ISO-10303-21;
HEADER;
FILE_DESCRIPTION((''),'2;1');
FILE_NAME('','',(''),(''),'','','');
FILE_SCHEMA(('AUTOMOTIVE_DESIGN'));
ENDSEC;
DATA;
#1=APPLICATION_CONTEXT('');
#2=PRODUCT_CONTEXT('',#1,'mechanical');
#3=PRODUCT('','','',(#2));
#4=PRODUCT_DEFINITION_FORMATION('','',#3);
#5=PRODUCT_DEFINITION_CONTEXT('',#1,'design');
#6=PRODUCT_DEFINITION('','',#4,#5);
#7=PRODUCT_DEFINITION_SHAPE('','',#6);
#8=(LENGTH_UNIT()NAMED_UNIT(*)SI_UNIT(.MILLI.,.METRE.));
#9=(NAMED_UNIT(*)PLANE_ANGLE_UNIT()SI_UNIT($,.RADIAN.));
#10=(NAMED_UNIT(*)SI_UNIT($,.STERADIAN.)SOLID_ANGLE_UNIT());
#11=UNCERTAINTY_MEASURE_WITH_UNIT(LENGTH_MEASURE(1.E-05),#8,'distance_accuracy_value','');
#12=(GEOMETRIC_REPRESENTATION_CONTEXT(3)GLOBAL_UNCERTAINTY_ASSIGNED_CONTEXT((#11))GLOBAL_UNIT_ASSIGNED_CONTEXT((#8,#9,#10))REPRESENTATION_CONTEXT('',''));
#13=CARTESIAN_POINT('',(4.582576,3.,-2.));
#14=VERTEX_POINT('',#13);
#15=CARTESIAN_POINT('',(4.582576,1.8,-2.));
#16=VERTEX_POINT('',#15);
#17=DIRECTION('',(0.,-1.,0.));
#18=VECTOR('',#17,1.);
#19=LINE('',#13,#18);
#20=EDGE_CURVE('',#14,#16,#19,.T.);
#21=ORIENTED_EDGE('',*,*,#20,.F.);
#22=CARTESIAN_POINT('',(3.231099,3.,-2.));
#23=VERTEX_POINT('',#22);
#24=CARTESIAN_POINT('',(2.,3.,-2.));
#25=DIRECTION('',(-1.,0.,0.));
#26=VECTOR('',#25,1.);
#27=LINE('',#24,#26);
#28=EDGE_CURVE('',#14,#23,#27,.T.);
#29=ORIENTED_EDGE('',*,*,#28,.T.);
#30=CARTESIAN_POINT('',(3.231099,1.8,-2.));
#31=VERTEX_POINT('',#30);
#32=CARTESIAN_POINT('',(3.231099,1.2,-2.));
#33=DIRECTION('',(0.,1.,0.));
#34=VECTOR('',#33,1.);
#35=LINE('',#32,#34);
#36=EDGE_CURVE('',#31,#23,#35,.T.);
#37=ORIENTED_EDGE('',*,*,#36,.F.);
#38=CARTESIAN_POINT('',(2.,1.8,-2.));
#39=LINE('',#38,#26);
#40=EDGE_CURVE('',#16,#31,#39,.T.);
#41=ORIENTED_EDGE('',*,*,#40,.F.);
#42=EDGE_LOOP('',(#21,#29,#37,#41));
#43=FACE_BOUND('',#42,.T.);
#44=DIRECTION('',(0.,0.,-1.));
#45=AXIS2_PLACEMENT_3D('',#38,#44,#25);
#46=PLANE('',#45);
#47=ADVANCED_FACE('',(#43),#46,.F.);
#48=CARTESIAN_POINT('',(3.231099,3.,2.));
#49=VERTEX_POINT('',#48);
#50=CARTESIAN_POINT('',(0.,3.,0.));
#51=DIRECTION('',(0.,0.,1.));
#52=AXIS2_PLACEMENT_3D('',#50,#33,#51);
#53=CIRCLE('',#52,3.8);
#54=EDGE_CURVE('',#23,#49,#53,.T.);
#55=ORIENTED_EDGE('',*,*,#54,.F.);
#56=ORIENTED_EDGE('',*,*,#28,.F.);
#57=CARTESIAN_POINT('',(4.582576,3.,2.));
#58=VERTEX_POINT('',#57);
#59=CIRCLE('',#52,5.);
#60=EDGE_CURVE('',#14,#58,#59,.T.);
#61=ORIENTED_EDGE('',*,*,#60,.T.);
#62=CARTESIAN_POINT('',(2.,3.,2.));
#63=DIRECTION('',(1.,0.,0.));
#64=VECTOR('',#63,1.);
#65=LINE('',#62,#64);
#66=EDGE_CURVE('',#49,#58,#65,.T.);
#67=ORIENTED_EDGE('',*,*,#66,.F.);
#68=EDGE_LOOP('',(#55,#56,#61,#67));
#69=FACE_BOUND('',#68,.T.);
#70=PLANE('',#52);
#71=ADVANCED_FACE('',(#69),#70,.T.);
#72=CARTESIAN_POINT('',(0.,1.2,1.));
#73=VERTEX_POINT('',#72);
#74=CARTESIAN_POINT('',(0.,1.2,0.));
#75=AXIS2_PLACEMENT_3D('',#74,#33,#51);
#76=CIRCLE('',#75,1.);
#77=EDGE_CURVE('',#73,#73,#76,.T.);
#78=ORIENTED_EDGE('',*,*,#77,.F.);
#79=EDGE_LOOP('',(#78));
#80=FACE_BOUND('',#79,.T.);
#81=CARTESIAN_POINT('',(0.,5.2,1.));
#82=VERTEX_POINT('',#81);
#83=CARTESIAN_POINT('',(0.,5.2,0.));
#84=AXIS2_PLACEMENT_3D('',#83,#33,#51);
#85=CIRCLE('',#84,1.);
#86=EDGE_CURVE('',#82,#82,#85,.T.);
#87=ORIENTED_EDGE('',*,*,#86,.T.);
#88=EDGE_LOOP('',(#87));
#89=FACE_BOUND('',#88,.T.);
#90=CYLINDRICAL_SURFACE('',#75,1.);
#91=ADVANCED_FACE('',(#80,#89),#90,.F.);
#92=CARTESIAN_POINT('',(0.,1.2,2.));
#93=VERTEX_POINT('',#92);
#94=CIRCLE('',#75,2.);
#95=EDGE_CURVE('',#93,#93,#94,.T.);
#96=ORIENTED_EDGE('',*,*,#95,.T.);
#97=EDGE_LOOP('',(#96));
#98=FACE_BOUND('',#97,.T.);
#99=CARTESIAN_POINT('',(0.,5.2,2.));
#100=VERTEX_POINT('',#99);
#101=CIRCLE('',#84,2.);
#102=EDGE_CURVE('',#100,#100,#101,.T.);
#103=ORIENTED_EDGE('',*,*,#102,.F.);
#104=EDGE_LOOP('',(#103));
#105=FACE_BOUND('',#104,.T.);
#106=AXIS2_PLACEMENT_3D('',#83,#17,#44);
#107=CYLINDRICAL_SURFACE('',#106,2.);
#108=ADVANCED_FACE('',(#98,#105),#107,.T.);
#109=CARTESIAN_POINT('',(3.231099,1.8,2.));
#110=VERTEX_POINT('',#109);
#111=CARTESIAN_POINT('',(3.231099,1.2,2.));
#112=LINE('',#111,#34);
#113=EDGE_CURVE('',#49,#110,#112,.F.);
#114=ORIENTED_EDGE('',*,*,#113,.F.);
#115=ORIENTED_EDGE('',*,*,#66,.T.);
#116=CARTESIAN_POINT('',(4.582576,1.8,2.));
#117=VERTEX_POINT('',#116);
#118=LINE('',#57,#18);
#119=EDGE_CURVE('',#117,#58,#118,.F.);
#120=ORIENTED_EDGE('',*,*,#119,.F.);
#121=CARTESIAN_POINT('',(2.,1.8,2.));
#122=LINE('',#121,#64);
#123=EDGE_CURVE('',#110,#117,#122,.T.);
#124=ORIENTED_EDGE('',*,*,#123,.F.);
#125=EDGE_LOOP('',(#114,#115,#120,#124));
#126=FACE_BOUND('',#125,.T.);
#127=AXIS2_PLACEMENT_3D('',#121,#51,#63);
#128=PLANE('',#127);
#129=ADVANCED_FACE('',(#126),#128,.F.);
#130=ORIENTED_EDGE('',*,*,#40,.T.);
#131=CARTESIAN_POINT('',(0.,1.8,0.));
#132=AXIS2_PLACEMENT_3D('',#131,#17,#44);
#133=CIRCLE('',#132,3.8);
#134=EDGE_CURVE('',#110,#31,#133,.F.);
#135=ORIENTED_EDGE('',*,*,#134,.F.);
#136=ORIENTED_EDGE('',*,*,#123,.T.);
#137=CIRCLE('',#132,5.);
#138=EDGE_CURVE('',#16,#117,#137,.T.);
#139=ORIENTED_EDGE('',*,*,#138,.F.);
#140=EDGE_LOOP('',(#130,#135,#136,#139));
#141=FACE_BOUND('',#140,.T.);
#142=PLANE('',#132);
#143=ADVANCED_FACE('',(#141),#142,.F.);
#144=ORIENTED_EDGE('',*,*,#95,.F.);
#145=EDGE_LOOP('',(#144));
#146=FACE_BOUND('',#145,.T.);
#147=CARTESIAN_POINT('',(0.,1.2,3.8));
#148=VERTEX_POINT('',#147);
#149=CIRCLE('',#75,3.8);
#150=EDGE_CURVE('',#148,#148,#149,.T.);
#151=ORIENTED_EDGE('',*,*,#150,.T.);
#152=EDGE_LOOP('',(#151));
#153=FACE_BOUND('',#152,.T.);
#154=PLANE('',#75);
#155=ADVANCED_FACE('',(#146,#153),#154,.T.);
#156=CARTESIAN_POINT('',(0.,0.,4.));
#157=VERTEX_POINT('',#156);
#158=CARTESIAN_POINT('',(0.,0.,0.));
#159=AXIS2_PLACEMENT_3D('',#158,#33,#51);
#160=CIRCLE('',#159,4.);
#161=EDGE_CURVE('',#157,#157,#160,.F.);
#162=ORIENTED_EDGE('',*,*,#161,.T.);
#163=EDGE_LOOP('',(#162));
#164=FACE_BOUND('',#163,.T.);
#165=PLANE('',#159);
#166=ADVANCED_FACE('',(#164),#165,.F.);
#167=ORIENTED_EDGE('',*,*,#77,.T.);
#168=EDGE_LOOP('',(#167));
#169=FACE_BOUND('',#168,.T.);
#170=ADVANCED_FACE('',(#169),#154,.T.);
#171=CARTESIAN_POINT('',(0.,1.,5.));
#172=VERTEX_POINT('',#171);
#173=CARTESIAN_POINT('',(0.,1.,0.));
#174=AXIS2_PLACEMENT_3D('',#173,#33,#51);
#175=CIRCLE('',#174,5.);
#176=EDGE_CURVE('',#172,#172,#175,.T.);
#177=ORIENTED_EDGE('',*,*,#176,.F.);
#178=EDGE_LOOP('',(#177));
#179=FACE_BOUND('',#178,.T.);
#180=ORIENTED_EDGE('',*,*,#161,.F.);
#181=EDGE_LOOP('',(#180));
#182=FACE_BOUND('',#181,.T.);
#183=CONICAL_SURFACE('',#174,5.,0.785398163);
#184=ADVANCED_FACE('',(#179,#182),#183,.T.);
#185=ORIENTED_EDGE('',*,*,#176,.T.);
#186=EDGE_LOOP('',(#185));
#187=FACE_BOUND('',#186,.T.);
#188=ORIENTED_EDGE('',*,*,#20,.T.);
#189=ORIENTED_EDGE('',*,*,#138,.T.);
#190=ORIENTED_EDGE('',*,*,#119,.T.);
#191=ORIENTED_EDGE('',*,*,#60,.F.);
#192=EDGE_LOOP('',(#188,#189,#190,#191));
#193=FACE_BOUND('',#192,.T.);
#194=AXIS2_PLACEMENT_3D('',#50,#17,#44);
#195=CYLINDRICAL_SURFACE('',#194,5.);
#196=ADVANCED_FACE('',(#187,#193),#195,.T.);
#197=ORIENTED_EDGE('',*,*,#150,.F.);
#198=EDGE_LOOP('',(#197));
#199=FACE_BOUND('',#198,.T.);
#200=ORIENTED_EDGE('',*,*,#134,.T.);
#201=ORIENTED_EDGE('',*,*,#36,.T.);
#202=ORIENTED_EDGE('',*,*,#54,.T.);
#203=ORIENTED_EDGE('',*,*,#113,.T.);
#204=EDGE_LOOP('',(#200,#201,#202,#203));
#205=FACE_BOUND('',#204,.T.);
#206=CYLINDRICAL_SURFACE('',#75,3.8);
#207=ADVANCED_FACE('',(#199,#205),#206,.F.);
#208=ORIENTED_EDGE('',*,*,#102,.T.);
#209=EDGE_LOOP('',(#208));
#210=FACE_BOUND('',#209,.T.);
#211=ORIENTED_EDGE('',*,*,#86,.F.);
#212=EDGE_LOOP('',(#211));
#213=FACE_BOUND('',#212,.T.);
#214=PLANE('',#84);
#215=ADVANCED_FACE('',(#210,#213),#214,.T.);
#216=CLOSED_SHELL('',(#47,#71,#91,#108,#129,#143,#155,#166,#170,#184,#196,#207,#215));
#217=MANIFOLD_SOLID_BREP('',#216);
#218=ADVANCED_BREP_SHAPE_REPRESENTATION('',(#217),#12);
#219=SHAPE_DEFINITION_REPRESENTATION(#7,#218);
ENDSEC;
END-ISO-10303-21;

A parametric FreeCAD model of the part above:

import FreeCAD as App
import Part
import Sketcher

V = App.Vector
Q = App.Units.Quantity


def edges_at(feature, points):
    """Names of the edges that pass closest to the given points."""
    edges = feature.Shape.Edges
    near = lambda p: min(range(len(edges)), key=lambda i: edges[i].distToShape(Part.Vertex(*p))[0])
    return sorted({f"Edge{near(p) + 1}" for p in points})


def add_polygon(sketch, points):
    """Adds a closed chain of lines whose ends are joined by coincident constraints."""
    first, n = sketch.GeometryCount, len(points)
    for a, b in zip(points, points[1:] + points[:1]):
        sketch.addGeometry(Part.LineSegment(App.Vector(*a, 0), App.Vector(*b, 0)), False)
    for i in range(n):
        sketch.addConstraint(Sketcher.Constraint("Coincident", first + i, 2, first + (i + 1) % n, 1))

doc = App.newDocument("Part")
body = doc.addObject("PartDesign::Body", "Body")

# Sketch on XZ plane
sketch1 = body.newObject("Sketcher::SketchObject", "Sketch")
sketch1.AttachmentSupport = (doc.getObject("XZ_Plane"), [""])
sketch1.MapMode = "FlatFace"
sketch1.addGeometry(Part.Circle(V(0, 0, 0), V(0, 0, 1), 5), False)
sketch1.addConstraint([
    Sketcher.Constraint("Coincident", 0, 3, -1, 1),
    Sketcher.Constraint("Diameter", 0, Q("10 mm")),
])
pad1 = body.newObject("PartDesign::Pad", "Pad")
pad1.Profile = sketch1
pad1.Length = 3
pad1.Reversed = True

# Sketch on XZ plane
sketch2 = body.newObject("Sketcher::SketchObject", "Sketch001")
sketch2.AttachmentSupport = (doc.getObject("XZ_Plane"), [""])
sketch2.MapMode = "FlatFace"
sketch2.AttachmentOffset = App.Placement(V(0, 0, -3), App.Rotation())
sketch2.addGeometry(Part.Circle(V(0, 0, 0), V(0, 0, 1), 3.8), False)
sketch2.addConstraint([
    Sketcher.Constraint("Coincident", 0, 3, -1, 1),
    Sketcher.Constraint("Diameter", 0, Q("7.6 mm")),
])
pocket1 = body.newObject("PartDesign::Pocket", "Pocket")
pocket1.Profile = sketch2
pocket1.Length = 1.8
pocket1.Reversed = True

# Sketch on XZ plane
sketch3 = body.newObject("Sketcher::SketchObject", "Sketch002")
sketch3.AttachmentSupport = (doc.getObject("XZ_Plane"), [""])
sketch3.MapMode = "FlatFace"
sketch3.AttachmentOffset = App.Placement(V(0, 0, -1.2), App.Rotation())
sketch3.addGeometry(Part.Circle(V(0, 0, 0), V(0, 0, 1), 2), False)
sketch3.addConstraint([
    Sketcher.Constraint("Coincident", 0, 3, -1, 1),
    Sketcher.Constraint("Diameter", 0, Q("4 mm")),
])
pad2 = body.newObject("PartDesign::Pad", "Pad001")
pad2.Profile = sketch3
pad2.Length = 4
pad2.Reversed = True

# Sketch on XZ plane
sketch4 = body.newObject("Sketcher::SketchObject", "Sketch003")
sketch4.AttachmentSupport = (doc.getObject("XZ_Plane"), [""])
sketch4.MapMode = "FlatFace"
sketch4.AttachmentOffset = App.Placement(V(0, 0, -5.2), App.Rotation())
sketch4.addGeometry(Part.Circle(V(0, 0, 0), V(0, 0, 1), 1), False)
sketch4.addConstraint([
    Sketcher.Constraint("Coincident", 0, 3, -1, 1),
    Sketcher.Constraint("Diameter", 0, Q("2 mm")),
])
pocket2 = body.newObject("PartDesign::Pocket", "Pocket001")
pocket2.Profile = sketch4
pocket2.Length = 4
pocket2.Reversed = True

# Sketch on XZ plane
sketch5 = body.newObject("Sketcher::SketchObject", "Sketch004")
sketch5.AttachmentSupport = (doc.getObject("XZ_Plane"), [""])
sketch5.MapMode = "FlatFace"
sketch5.AttachmentOffset = App.Placement(V(0, 0, -3), App.Rotation())
add_polygon(sketch5, [(2, -2), (2, 2), (6, 2), (6, -2)])  # lines 0-3
sketch5.addConstraint([
    Sketcher.Constraint("Vertical", 0),
    Sketcher.Constraint("Horizontal", 1),
    Sketcher.Constraint("Vertical", 2),
    Sketcher.Constraint("Horizontal", 3),
    Sketcher.Constraint("Equal", 3, 0),
    Sketcher.Constraint("DistanceX", 1, 1, 1, 2, Q("4 mm")),
    Sketcher.Constraint("DistanceX", -1, 1, 0, 2, Q("2 mm")),
    Sketcher.Constraint("DistanceY", -1, 1, 0, 2, Q("2 mm")),
])
pocket3 = body.newObject("PartDesign::Pocket", "Pocket002")
pocket3.Profile = sketch5
pocket3.Length = 1.2
pocket3.Reversed = True
doc.recompute()

chamfer = body.newObject("PartDesign::Chamfer", "Chamfer")
chamfer.Base = (pocket3, edges_at(pocket3, [(-5, 0, 0)]))
chamfer.Size = 1

doc.recompute()
